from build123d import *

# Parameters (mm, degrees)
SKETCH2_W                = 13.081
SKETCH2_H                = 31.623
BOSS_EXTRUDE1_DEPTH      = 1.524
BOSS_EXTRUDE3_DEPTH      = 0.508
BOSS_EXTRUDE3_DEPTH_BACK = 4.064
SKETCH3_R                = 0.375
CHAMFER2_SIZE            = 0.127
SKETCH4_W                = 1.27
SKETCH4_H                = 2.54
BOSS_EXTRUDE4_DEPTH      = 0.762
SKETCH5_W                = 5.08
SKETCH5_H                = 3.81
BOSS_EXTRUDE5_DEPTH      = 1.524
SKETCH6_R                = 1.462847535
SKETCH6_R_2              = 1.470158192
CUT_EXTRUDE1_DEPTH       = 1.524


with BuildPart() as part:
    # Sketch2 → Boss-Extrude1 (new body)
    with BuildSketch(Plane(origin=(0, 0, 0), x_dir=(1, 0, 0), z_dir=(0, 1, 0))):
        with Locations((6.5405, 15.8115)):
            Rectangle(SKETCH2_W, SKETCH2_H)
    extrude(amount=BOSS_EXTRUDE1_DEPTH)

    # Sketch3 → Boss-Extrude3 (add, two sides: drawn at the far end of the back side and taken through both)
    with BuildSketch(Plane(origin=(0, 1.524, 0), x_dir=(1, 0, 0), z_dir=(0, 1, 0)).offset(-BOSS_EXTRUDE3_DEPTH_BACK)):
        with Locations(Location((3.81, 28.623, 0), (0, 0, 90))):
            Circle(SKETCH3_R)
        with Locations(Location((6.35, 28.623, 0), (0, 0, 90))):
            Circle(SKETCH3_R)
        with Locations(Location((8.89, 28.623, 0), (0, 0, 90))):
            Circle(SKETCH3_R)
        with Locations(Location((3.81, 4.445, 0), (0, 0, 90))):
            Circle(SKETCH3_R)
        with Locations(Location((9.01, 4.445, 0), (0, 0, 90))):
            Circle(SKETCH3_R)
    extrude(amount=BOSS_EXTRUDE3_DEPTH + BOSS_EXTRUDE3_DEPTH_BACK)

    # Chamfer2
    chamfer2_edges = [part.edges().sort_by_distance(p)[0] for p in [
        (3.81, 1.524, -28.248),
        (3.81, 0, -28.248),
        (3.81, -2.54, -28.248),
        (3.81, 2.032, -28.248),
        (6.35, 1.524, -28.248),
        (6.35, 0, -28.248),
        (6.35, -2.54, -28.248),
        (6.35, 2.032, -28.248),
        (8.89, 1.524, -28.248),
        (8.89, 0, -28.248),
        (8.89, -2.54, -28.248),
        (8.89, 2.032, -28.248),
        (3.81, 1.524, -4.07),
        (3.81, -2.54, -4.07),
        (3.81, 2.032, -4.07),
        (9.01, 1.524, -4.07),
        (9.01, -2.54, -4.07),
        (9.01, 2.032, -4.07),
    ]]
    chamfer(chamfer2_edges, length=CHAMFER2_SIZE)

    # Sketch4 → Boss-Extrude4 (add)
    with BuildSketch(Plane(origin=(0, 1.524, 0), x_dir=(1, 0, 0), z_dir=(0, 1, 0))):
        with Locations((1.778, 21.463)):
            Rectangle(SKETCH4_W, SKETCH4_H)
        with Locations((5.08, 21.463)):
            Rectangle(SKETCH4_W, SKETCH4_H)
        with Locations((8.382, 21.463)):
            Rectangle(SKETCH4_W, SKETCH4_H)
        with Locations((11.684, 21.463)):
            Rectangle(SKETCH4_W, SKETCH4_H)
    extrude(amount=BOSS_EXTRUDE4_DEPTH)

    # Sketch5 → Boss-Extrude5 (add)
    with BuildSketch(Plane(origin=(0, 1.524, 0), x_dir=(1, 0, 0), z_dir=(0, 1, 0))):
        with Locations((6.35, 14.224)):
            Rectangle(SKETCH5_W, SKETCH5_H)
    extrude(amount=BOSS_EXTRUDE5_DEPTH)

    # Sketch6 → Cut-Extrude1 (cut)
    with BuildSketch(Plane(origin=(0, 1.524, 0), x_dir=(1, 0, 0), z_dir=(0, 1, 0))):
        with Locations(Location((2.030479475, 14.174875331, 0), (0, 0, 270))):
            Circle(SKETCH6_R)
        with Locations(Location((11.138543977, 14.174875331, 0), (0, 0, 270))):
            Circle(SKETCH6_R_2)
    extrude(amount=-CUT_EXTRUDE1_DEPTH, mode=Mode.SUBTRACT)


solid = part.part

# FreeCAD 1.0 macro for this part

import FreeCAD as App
import Part
import Sketcher

V = App.Vector
Q = App.Units.Quantity


def edges_at(feature, points):
    """Names of the edges that pass closest to the given points."""
    edges = feature.Shape.Edges
    near = lambda p: min(range(len(edges)), key=lambda i: edges[i].distToShape(Part.Vertex(*p))[0])
    return sorted({f"Edge{near(p) + 1}" for p in points})

doc = App.newDocument("Part")
body = doc.addObject("PartDesign::Body", "Body")

# Sketch on XZ plane
sketch1 = doc.addObject("Sketcher::SketchObject", "Sketch")
body.addObject(sketch1)
sketch1.AttachmentSupport = (doc.XZ_Plane, [""])
sketch1.MapMode = "FlatFace"
sketch1.addGeometry([
    Part.LineSegment(V(0, -32, 0), V(0, 0, 0)),
    Part.LineSegment(V(0, 0, 0), V(13, 0, 0)),
    Part.LineSegment(V(13, 0, 0), V(13, -32, 0)),
    Part.LineSegment(V(13, -32, 0), V(0, -32, 0)),
], False)
sketch1.addConstraint([
    Sketcher.Constraint("Coincident", 0, 2, 1, 1),
    Sketcher.Constraint("Coincident", 1, 2, 2, 1),
    Sketcher.Constraint("Coincident", 2, 2, 3, 1),
    Sketcher.Constraint("Coincident", 3, 2, 0, 1),
    Sketcher.Constraint("Vertical", 0),
    Sketcher.Constraint("Horizontal", 1),
    Sketcher.Constraint("Vertical", 2),
    Sketcher.Constraint("Horizontal", 3),
    Sketcher.Constraint("Coincident", 0, 2, -1, 1),
    Sketcher.Constraint("DistanceX", 1, 1, 1, 2, Q("0.515 in")),
    Sketcher.Constraint("DistanceY", 0, 1, 0, 2, Q("1.245 in")),
])
pad1 = doc.addObject("PartDesign::Pad", "Pad")
body.addObject(pad1)
pad1.Profile = sketch1
pad1.Length = Q("0.06 in")
pad1.Reversed = True

# Sketch on XZ plane
sketch2 = doc.addObject("Sketcher::SketchObject", "Sketch001")
body.addObject(sketch2)
sketch2.AttachmentSupport = (doc.XZ_Plane, [""])
sketch2.MapMode = "FlatFace"
sketch2.AttachmentOffset = App.Placement(V(0, 0, -0.06 * 25.4), App.Rotation())
sketch2.addGeometry([
    Part.Circle(V(3.81, -28.62, 0), V(0, 0, 1), 0.38),  # 0
    Part.Circle(V(6.35, -28.62, 0), V(0, 0, 1), 0.38),  # 1
    Part.Circle(V(8.89, -28.62, 0), V(0, 0, 1), 0.38),  # 2
    Part.Circle(V(3.81, -4.45, 0), V(0, 0, 1), 0.38),  # 3
    Part.Circle(V(9.01, -4.45, 0), V(0, 0, 1), 0.38),  # 4
], False)
sketch2.addConstraint([
    Sketcher.Constraint("Equal", 0, 1),
    Sketcher.Constraint("Equal", 1, 2),
    Sketcher.Constraint("Equal", 2, 3),
    Sketcher.Constraint("Equal", 3, 4),
    Sketcher.Constraint("Horizontal", 0, 3, 1, 3),
    Sketcher.Constraint("Horizontal", 1, 3, 2, 3),
    Sketcher.Constraint("Horizontal", 3, 3, 4, 3),
    Sketcher.Constraint("Vertical", 0, 3, 3, 3),
    Sketcher.Constraint("DistanceX", 0, 3, 1, 3, Q("0.1 in")),
    Sketcher.Constraint("DistanceX", 1, 3, 2, 3, Q("0.1 in")),
    Sketcher.Constraint("Diameter", 0, Q("0.75 mm")),
    Sketcher.Constraint("DistanceX", -1, 1, 0, 3, Q("0.15 in")),
    Sketcher.Constraint("DistanceY", 3, 3, -1, 1, Q("0.175 in")),
    Sketcher.Constraint("DistanceY", 0, 3, -1, 1, Q("28.623 mm")),
    Sketcher.Constraint("DistanceX", -1, 1, 4, 3, Q("9.01 mm")),
])
pad2 = doc.addObject("PartDesign::Pad", "Pad001")
body.addObject(pad2)
pad2.Profile = sketch2
pad2.Type = "TwoLengths"
pad2.Length = Q("0.02 in")
pad2.Length2 = Q("0.16 in")
pad2.Reversed = True
doc.recompute()

chamfer = doc.addObject("PartDesign::Chamfer", "Chamfer")
body.addObject(chamfer)
chamfer.Base = (pad2, edges_at(pad2, [
    (3.81, 1.524, -28.248),
    (3.81, 0, -28.248),
    (3.81, -2.54, -28.248),
    (3.81, 2.032, -28.248),
    (6.35, 1.524, -28.248),
    (6.35, 0, -28.248),
    (6.35, -2.54, -28.248),
    (6.35, 2.032, -28.248),
    (8.89, 1.524, -28.248),
    (8.89, 0, -28.248),
    (8.89, -2.54, -28.248),
    (8.89, 2.032, -28.248),
    (3.81, 1.524, -4.07),
    (3.81, -2.54, -4.07),
    (3.81, 2.032, -4.07),
    (9.01, 1.524, -4.07),
    (9.01, -2.54, -4.07),
    (9.01, 2.032, -4.07),
]))
chamfer.Size = Q("0.005 in")

# Sketch on XZ plane
sketch3 = doc.addObject("Sketcher::SketchObject", "Sketch002")
body.addObject(sketch3)
sketch3.AttachmentSupport = (doc.XZ_Plane, [""])
sketch3.MapMode = "FlatFace"
sketch3.AttachmentOffset = App.Placement(V(0, 0, -0.06 * 25.4), App.Rotation())
sketch3.addGeometry([
    Part.LineSegment(V(1.1, -22.7, 0), V(1.1, -20.2, 0)),  # 0
    Part.LineSegment(V(1.1, -20.2, 0), V(2.4, -20.2, 0)),  # 1
    Part.LineSegment(V(2.4, -20.2, 0), V(2.4, -22.7, 0)),  # 2
    Part.LineSegment(V(2.4, -22.7, 0), V(1.1, -22.7, 0)),  # 3
    Part.LineSegment(V(4.4, -22.7, 0), V(4.4, -20.2, 0)),  # 4
    Part.LineSegment(V(4.4, -20.2, 0), V(5.7, -20.2, 0)),  # 5
    Part.LineSegment(V(5.7, -20.2, 0), V(5.7, -22.7, 0)),  # 6
    Part.LineSegment(V(5.7, -22.7, 0), V(4.4, -22.7, 0)),  # 7
    Part.LineSegment(V(7.7, -22.7, 0), V(7.7, -20.2, 0)),  # 8
    Part.LineSegment(V(7.7, -20.2, 0), V(9, -20.2, 0)),  # 9
    Part.LineSegment(V(9, -20.2, 0), V(9, -22.7, 0)),  # 10
    Part.LineSegment(V(9, -22.7, 0), V(7.7, -22.7, 0)),  # 11
    Part.LineSegment(V(11, -22.7, 0), V(11, -20.2, 0)),  # 12
    Part.LineSegment(V(11, -20.2, 0), V(12.3, -20.2, 0)),  # 13
    Part.LineSegment(V(12.3, -20.2, 0), V(12.3, -22.7, 0)),  # 14
    Part.LineSegment(V(12.3, -22.7, 0), V(11, -22.7, 0)),  # 15
], False)
sketch3.addConstraint([
    Sketcher.Constraint("Coincident", 0, 2, 1, 1),
    Sketcher.Constraint("Coincident", 1, 2, 2, 1),
    Sketcher.Constraint("Coincident", 2, 2, 3, 1),
    Sketcher.Constraint("Coincident", 3, 2, 0, 1),
    Sketcher.Constraint("Coincident", 4, 2, 5, 1),
    Sketcher.Constraint("Coincident", 5, 2, 6, 1),
    Sketcher.Constraint("Coincident", 6, 2, 7, 1),
    Sketcher.Constraint("Coincident", 7, 2, 4, 1),
    Sketcher.Constraint("Coincident", 8, 2, 9, 1),
    Sketcher.Constraint("Coincident", 9, 2, 10, 1),
    Sketcher.Constraint("Coincident", 10, 2, 11, 1),
    Sketcher.Constraint("Coincident", 11, 2, 8, 1),
    Sketcher.Constraint("Coincident", 12, 2, 13, 1),
    Sketcher.Constraint("Coincident", 13, 2, 14, 1),
    Sketcher.Constraint("Coincident", 14, 2, 15, 1),
    Sketcher.Constraint("Coincident", 15, 2, 12, 1),
    Sketcher.Constraint("Vertical", 0),
    Sketcher.Constraint("Horizontal", 1),
    Sketcher.Constraint("Vertical", 2),
    Sketcher.Constraint("Horizontal", 3),
    Sketcher.Constraint("Vertical", 4),
    Sketcher.Constraint("Horizontal", 5),
    Sketcher.Constraint("Vertical", 6),
    Sketcher.Constraint("Horizontal", 7),
    Sketcher.Constraint("Vertical", 8),
    Sketcher.Constraint("Horizontal", 9),
    Sketcher.Constraint("Vertical", 10),
    Sketcher.Constraint("Horizontal", 11),
    Sketcher.Constraint("Vertical", 12),
    Sketcher.Constraint("Horizontal", 13),
    Sketcher.Constraint("Vertical", 14),
    Sketcher.Constraint("Horizontal", 15),
    Sketcher.Constraint("Horizontal", 1, 2, 4, 2),
    Sketcher.Constraint("Horizontal", 3, 2, 6, 2),
    Sketcher.Constraint("Horizontal", 5, 2, 8, 2),
    Sketcher.Constraint("Horizontal", 7, 2, 10, 2),
    Sketcher.Constraint("Horizontal", 9, 2, 12, 2),
    Sketcher.Constraint("Horizontal", 11, 2, 14, 2),
    Sketcher.Constraint("Equal", 3, 5),
    Sketcher.Constraint("Equal", 7, 9),
    Sketcher.Constraint("Equal", 11, 13),
    Sketcher.Constraint("DistanceY", 0, 1, 0, 2, Q("0.1 in")),
    Sketcher.Constraint("DistanceX", 1, 1, 1, 2, Q("0.05 in")),
    Sketcher.Constraint("DistanceX", 1, 2, 4, 2, Q("0.08 in")),
    Sketcher.Constraint("DistanceX", 5, 2, 8, 2, Q("0.08 in")),
    Sketcher.Constraint("DistanceX", 9, 2, 12, 2, Q("0.08 in")),
    Sketcher.Constraint("DistanceX", -1, 1, 0, 2, Q("0.045 in")),
    Sketcher.Constraint("DistanceY", 0, 2, -1, 1, Q("0.795 in")),
])
pad3 = doc.addObject("PartDesign::Pad", "Pad002")
body.addObject(pad3)
pad3.Profile = sketch3
pad3.Length = Q("0.03 in")
pad3.Reversed = True

# Sketch on XZ plane
sketch4 = doc.addObject("Sketcher::SketchObject", "Sketch003")
body.addObject(sketch4)
sketch4.AttachmentSupport = (doc.XZ_Plane, [""])
sketch4.MapMode = "FlatFace"
sketch4.AttachmentOffset = App.Placement(V(0, 0, -0.06 * 25.4), App.Rotation())
sketch4.addGeometry([
    Part.LineSegment(V(3.8, -16.1, 0), V(3.8, -12.3, 0)),
    Part.LineSegment(V(3.8, -12.3, 0), V(8.9, -12.3, 0)),
    Part.LineSegment(V(8.9, -12.3, 0), V(8.9, -16.1, 0)),
    Part.LineSegment(V(8.9, -16.1, 0), V(3.8, -16.1, 0)),
], False)
sketch4.addConstraint([
    Sketcher.Constraint("Coincident", 0, 2, 1, 1),
    Sketcher.Constraint("Coincident", 1, 2, 2, 1),
    Sketcher.Constraint("Coincident", 2, 2, 3, 1),
    Sketcher.Constraint("Coincident", 3, 2, 0, 1),
    Sketcher.Constraint("Vertical", 0),
    Sketcher.Constraint("Horizontal", 1),
    Sketcher.Constraint("Vertical", 2),
    Sketcher.Constraint("Horizontal", 3),
    Sketcher.Constraint("DistanceX", 1, 1, 1, 2, Q("0.2 in")),
    Sketcher.Constraint("DistanceY", 0, 1, 0, 2, Q("0.15 in")),
    Sketcher.Constraint("DistanceX", -1, 1, 0, 2, Q("0.15 in")),
    Sketcher.Constraint("DistanceY", 0, 2, -1, 1, Q("0.485 in")),
])
pad4 = doc.addObject("PartDesign::Pad", "Pad003")
body.addObject(pad4)
pad4.Profile = sketch4
pad4.Length = Q("0.06 in")
pad4.Reversed = True

# Sketch on XZ plane
sketch5 = doc.addObject("Sketcher::SketchObject", "Sketch004")
body.addObject(sketch5)
sketch5.AttachmentSupport = (doc.XZ_Plane, [""])
sketch5.MapMode = "FlatFace"
sketch5.AttachmentOffset = App.Placement(V(0, 0, -0.06 * 25.4), App.Rotation())
sketch5.addGeometry([
    Part.Circle(V(2, -14.2, 0), V(0, 0, 1), 1.5),
    Part.Circle(V(11.1, -14.2, 0), V(0, 0, 1), 1.5),
], False)
sketch5.addConstraint([
    Sketcher.Constraint("Horizontal", 0, 3, 1, 3),
    Sketcher.Constraint("Diameter", 0, Q("2.925695 mm")),
    Sketcher.Constraint("Diameter", 1, Q("2.940316 mm")),
    Sketcher.Constraint("DistanceX", -1, 1, 0, 3, Q("2.030479 mm")),
    Sketcher.Constraint("DistanceY", 0, 3, -1, 1, Q("14.174875 mm")),
    Sketcher.Constraint("DistanceX", -1, 1, 1, 3, Q("11.138544 mm")),
])
pocket1 = doc.addObject("PartDesign::Pocket", "Pocket")
body.addObject(pocket1)
pocket1.Profile = sketch5
pocket1.Length = Q("0.06 in")
pocket1.Reversed = True

doc.recompute()
